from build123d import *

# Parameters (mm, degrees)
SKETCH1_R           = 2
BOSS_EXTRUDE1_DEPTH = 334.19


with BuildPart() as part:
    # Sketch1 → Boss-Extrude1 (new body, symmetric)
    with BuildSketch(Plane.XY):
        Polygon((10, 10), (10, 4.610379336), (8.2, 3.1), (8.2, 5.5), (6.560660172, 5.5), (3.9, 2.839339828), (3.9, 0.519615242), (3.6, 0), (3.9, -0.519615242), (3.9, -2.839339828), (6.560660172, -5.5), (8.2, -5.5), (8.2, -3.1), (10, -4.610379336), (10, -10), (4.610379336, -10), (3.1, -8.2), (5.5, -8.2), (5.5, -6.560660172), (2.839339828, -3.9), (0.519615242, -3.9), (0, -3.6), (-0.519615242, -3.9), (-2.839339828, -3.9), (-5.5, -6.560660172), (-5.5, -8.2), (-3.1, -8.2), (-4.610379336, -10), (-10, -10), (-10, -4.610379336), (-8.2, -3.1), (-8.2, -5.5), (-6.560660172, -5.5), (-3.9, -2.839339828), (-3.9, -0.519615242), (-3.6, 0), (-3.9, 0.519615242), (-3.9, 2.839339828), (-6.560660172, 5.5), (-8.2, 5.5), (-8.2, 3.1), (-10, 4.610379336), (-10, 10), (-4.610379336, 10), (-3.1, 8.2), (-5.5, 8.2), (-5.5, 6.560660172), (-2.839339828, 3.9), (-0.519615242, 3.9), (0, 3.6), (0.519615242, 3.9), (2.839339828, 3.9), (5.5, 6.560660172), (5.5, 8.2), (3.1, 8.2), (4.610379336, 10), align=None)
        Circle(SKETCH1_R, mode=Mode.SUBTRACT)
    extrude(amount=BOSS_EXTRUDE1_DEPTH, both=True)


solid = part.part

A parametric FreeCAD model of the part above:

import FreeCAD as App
import Part
import Sketcher

V = App.Vector
Q = App.Units.Quantity

doc = App.newDocument("Part")
body = doc.addObject("PartDesign::Body", "Body")

sketch1 = body.newObject("Sketcher::SketchObject", "Sketch")
sketch1.AttachmentSupport = (doc.getObject("XY_Plane"), [""])
sketch1.MapMode = "FlatFace"
sketch1.addGeometry([
    Part.LineSegment(V(10, 4.610379, 0), V(10, 10, 0)),
    Part.LineSegment(V(10, 10, 0), V(4.610379, 10, 0)),
    Part.LineSegment(V(4.610379, 10, 0), V(3.1, 8.2, 0)),
    Part.LineSegment(V(3.1, 8.2, 0), V(5.5, 8.2, 0)),
    Part.LineSegment(V(5.5, 8.2, 0), V(5.5, 6.56066, 0)),
    Part.LineSegment(V(5.5, 6.56066, 0), V(2.83934, 3.9, 0)),
    Part.LineSegment(V(2.83934, 3.9, 0), V(0.519615, 3.9, 0)),
    Part.LineSegment(V(0.519615, 3.9, 0), V(0, 3.6, 0)),
    Part.LineSegment(V(0, 3.6, 0), V(-0.519615, 3.9, 0)),
    Part.LineSegment(V(-0.519615, 3.9, 0), V(-2.83934, 3.9, 0)),
    Part.LineSegment(V(-2.83934, 3.9, 0), V(-5.5, 6.56066, 0)),
    Part.LineSegment(V(-5.5, 6.56066, 0), V(-5.5, 8.2, 0)),
    Part.LineSegment(V(-5.5, 8.2, 0), V(-3.1, 8.2, 0)),
    Part.LineSegment(V(-3.1, 8.2, 0), V(-4.610379, 10, 0)),
    Part.LineSegment(V(-4.610379, 10, 0), V(-10, 10, 0)),
    Part.LineSegment(V(-10, 10, 0), V(-10, 4.610379, 0)),
    Part.LineSegment(V(-10, 4.610379, 0), V(-8.2, 3.1, 0)),
    Part.LineSegment(V(-8.2, 3.1, 0), V(-8.2, 5.5, 0)),
    Part.LineSegment(V(-8.2, 5.5, 0), V(-6.56066, 5.5, 0)),
    Part.LineSegment(V(-6.56066, 5.5, 0), V(-3.9, 2.83934, 0)),
    Part.LineSegment(V(-3.9, 2.83934, 0), V(-3.9, 0.519615, 0)),
    Part.LineSegment(V(-3.9, 0.519615, 0), V(-3.6, 0, 0)),
    Part.LineSegment(V(-3.6, 0, 0), V(-3.9, -0.519615, 0)),
    Part.LineSegment(V(-3.9, -0.519615, 0), V(-3.9, -2.83934, 0)),
    Part.LineSegment(V(-3.9, -2.83934, 0), V(-6.56066, -5.5, 0)),
    Part.LineSegment(V(-6.56066, -5.5, 0), V(-8.2, -5.5, 0)),
    Part.LineSegment(V(-8.2, -5.5, 0), V(-8.2, -3.1, 0)),
    Part.LineSegment(V(-8.2, -3.1, 0), V(-10, -4.610379, 0)),
    Part.LineSegment(V(-10, -4.610379, 0), V(-10, -10, 0)),
    Part.LineSegment(V(-10, -10, 0), V(-4.610379, -10, 0)),
    Part.LineSegment(V(-4.610379, -10, 0), V(-3.1, -8.2, 0)),
    Part.LineSegment(V(-3.1, -8.2, 0), V(-5.5, -8.2, 0)),
    Part.LineSegment(V(-5.5, -8.2, 0), V(-5.5, -6.56066, 0)),
    Part.LineSegment(V(-5.5, -6.56066, 0), V(-2.83934, -3.9, 0)),
    Part.LineSegment(V(-2.83934, -3.9, 0), V(-0.519615, -3.9, 0)),
    Part.LineSegment(V(-0.519615, -3.9, 0), V(0, -3.6, 0)),
    Part.LineSegment(V(0, -3.6, 0), V(0.519615, -3.9, 0)),
    Part.LineSegment(V(0.519615, -3.9, 0), V(2.83934, -3.9, 0)),
    Part.LineSegment(V(2.83934, -3.9, 0), V(5.5, -6.56066, 0)),
    Part.LineSegment(V(5.5, -6.56066, 0), V(5.5, -8.2, 0)),
    Part.LineSegment(V(5.5, -8.2, 0), V(3.1, -8.2, 0)),
    Part.LineSegment(V(3.1, -8.2, 0), V(4.610379, -10, 0)),
    Part.LineSegment(V(4.610379, -10, 0), V(10, -10, 0)),
    Part.LineSegment(V(10, -10, 0), V(10, -4.610379, 0)),
    Part.LineSegment(V(10, -4.610379, 0), V(8.2, -3.1, 0)),
    Part.LineSegment(V(8.2, -3.1, 0), V(8.2, -5.5, 0)),
    Part.LineSegment(V(8.2, -5.5, 0), V(6.56066, -5.5, 0)),
    Part.LineSegment(V(6.56066, -5.5, 0), V(3.9, -2.83934, 0)),
    Part.LineSegment(V(3.9, -2.83934, 0), V(3.9, -0.519615, 0)),
    Part.LineSegment(V(3.9, -0.519615, 0), V(3.6, 0, 0)),
    Part.LineSegment(V(3.6, 0, 0), V(3.9, 0.519615, 0)),
    Part.LineSegment(V(3.9, 0.519615, 0), V(3.9, 2.83934, 0)),
    Part.LineSegment(V(3.9, 2.83934, 0), V(6.56066, 5.5, 0)),
    Part.LineSegment(V(6.56066, 5.5, 0), V(8.2, 5.5, 0)),
    Part.LineSegment(V(8.2, 5.5, 0), V(8.2, 3.1, 0)),
    Part.LineSegment(V(8.2, 3.1, 0), V(10, 4.610379, 0)),
    Part.Circle(V(0, 0, 0), V(0, 0, 1), 2),
], False)
sketch1.addConstraint([
    Sketcher.Constraint("Coincident", 0, 2, 1, 1),
    Sketcher.Constraint("Coincident", 1, 2, 2, 1),
    Sketcher.Constraint("Coincident", 2, 2, 3, 1),
    Sketcher.Constraint("Coincident", 3, 2, 4, 1),
    Sketcher.Constraint("Coincident", 4, 2, 5, 1),
    Sketcher.Constraint("Coincident", 5, 2, 6, 1),
    Sketcher.Constraint("Coincident", 6, 2, 7, 1),
    Sketcher.Constraint("Coincident", 7, 2, 8, 1),
    Sketcher.Constraint("Coincident", 8, 2, 9, 1),
    Sketcher.Constraint("Coincident", 9, 2, 10, 1),
    Sketcher.Constraint("Coincident", 10, 2, 11, 1),
    Sketcher.Constraint("Coincident", 11, 2, 12, 1),
    Sketcher.Constraint("Coincident", 12, 2, 13, 1),
    Sketcher.Constraint("Coincident", 13, 2, 14, 1),
    Sketcher.Constraint("Coincident", 14, 2, 15, 1),
    Sketcher.Constraint("Coincident", 15, 2, 16, 1),
    Sketcher.Constraint("Coincident", 16, 2, 17, 1),
    Sketcher.Constraint("Coincident", 17, 2, 18, 1),
    Sketcher.Constraint("Coincident", 18, 2, 19, 1),
    Sketcher.Constraint("Coincident", 19, 2, 20, 1),
    Sketcher.Constraint("Coincident", 20, 2, 21, 1),
    Sketcher.Constraint("Coincident", 21, 2, 22, 1),
    Sketcher.Constraint("Coincident", 22, 2, 23, 1),
    Sketcher.Constraint("Coincident", 23, 2, 24, 1),
    Sketcher.Constraint("Coincident", 24, 2, 25, 1),
    Sketcher.Constraint("Coincident", 25, 2, 26, 1),
    Sketcher.Constraint("Coincident", 26, 2, 27, 1),
    Sketcher.Constraint("Coincident", 27, 2, 28, 1),
    Sketcher.Constraint("Coincident", 28, 2, 29, 1),
    Sketcher.Constraint("Coincident", 29, 2, 30, 1),
    Sketcher.Constraint("Coincident", 30, 2, 31, 1),
    Sketcher.Constraint("Coincident", 31, 2, 32, 1),
    Sketcher.Constraint("Coincident", 32, 2, 33, 1),
    Sketcher.Constraint("Coincident", 33, 2, 34, 1),
    Sketcher.Constraint("Coincident", 34, 2, 35, 1),
    Sketcher.Constraint("Coincident", 35, 2, 36, 1),
    Sketcher.Constraint("Coincident", 36, 2, 37, 1),
    Sketcher.Constraint("Coincident", 37, 2, 38, 1),
    Sketcher.Constraint("Coincident", 38, 2, 39, 1),
    Sketcher.Constraint("Coincident", 39, 2, 40, 1),
    Sketcher.Constraint("Coincident", 40, 2, 41, 1),
    Sketcher.Constraint("Coincident", 41, 2, 42, 1),
    Sketcher.Constraint("Coincident", 42, 2, 43, 1),
    Sketcher.Constraint("Coincident", 43, 2, 44, 1),
    Sketcher.Constraint("Coincident", 44, 2, 45, 1),
    Sketcher.Constraint("Coincident", 45, 2, 46, 1),
    Sketcher.Constraint("Coincident", 46, 2, 47, 1),
    Sketcher.Constraint("Coincident", 47, 2, 48, 1),
    Sketcher.Constraint("Coincident", 48, 2, 49, 1),
    Sketcher.Constraint("Coincident", 49, 2, 50, 1),
    Sketcher.Constraint("Coincident", 50, 2, 51, 1),
    Sketcher.Constraint("Coincident", 51, 2, 52, 1),
    Sketcher.Constraint("Coincident", 52, 2, 53, 1),
    Sketcher.Constraint("Coincident", 53, 2, 54, 1),
    Sketcher.Constraint("Coincident", 54, 2, 55, 1),
    Sketcher.Constraint("Coincident", 55, 2, 0, 1),
    Sketcher.Constraint("Vertical", 0),
    Sketcher.Constraint("Horizontal", 1),
    Sketcher.Constraint("Horizontal", 3),
    Sketcher.Constraint("Vertical", 4),
    Sketcher.Constraint("Horizontal", 6),
    Sketcher.Constraint("Horizontal", 9),
    Sketcher.Constraint("Vertical", 11),
    Sketcher.Constraint("Horizontal", 12),
    Sketcher.Constraint("Horizontal", 14),
    Sketcher.Constraint("Vertical", 15),
    Sketcher.Constraint("Vertical", 17),
    Sketcher.Constraint("Horizontal", 18),
    Sketcher.Constraint("Vertical", 20),
    Sketcher.Constraint("Vertical", 23),
    Sketcher.Constraint("Horizontal", 25),
    Sketcher.Constraint("Vertical", 26),
    Sketcher.Constraint("Vertical", 28),
    Sketcher.Constraint("Horizontal", 29),
    Sketcher.Constraint("Horizontal", 31),
    Sketcher.Constraint("Vertical", 32),
    Sketcher.Constraint("Horizontal", 34),
    Sketcher.Constraint("Horizontal", 37),
    Sketcher.Constraint("Vertical", 39),
    Sketcher.Constraint("Horizontal", 40),
    Sketcher.Constraint("Horizontal", 42),
    Sketcher.Constraint("Vertical", 43),
    Sketcher.Constraint("Vertical", 45),
    Sketcher.Constraint("Horizontal", 46),
    Sketcher.Constraint("Vertical", 48),
    Sketcher.Constraint("Vertical", 51),
    Sketcher.Constraint("Horizontal", 53),
    Sketcher.Constraint("Vertical", 54),
    Sketcher.Constraint("Coincident", 56, 3, -1, 1),
    Sketcher.Constraint("Symmetric", 0, 2, 28, 2, -1, 1),
    Sketcher.Constraint("Symmetric", 2, 2, 30, 2, -1, 1),
    Sketcher.Constraint("Symmetric", 4, 2, 32, 2, -1, 1),
    Sketcher.Constraint("Symmetric", 5, 2, 33, 2, -1, 1),
    Sketcher.Constraint("Symmetric", 7, 2, 35, 2, -1, 1),
    Sketcher.Constraint("Symmetric", 8, 2, 36, 2, -1, 1),
    Sketcher.Constraint("Symmetric", 10, 2, 38, 2, -1, 1),
    Sketcher.Constraint("Symmetric", 12, 2, 40, 2, -1, 1),
    Sketcher.Constraint("Symmetric", 13, 2, 41, 2, -1, 1),
    Sketcher.Constraint("Symmetric", 15, 2, 43, 2, -1, 1),
    Sketcher.Constraint("Symmetric", 16, 2, 44, 2, -1, 1),
    Sketcher.Constraint("Symmetric", 18, 2, 46, 2, -1, 1),
    Sketcher.Constraint("Symmetric", 19, 2, 47, 2, -1, 1),
    Sketcher.Constraint("Symmetric", 21, 2, 49, 2, -1, 1),
    Sketcher.Constraint("Symmetric", 22, 2, 50, 2, -1, 1),
    Sketcher.Constraint("Symmetric", 24, 2, 52, 2, -1, 1),
    Sketcher.Constraint("Symmetric", 26, 2, 54, 2, -1, 1),
    Sketcher.Constraint("Symmetric", 6, 2, 8, 2, -2),
    Sketcher.Constraint("Symmetric", 4, 2, 10, 2, -2),
    Sketcher.Constraint("Symmetric", 2, 2, 12, 2, -2),
    Sketcher.Constraint("Symmetric", 1, 2, 13, 2, -2),
    Sketcher.Constraint("Symmetric", 27, 2, 43, 2, -2),
    Sketcher.Constraint("Symmetric", 26, 2, 44, 2, -2),
    Sketcher.Constraint("Symmetric", 24, 2, 46, 2, -2),
    Sketcher.Constraint("Symmetric", 23, 2, 47, 2, -2),
    Sketcher.Constraint("PointOnObject", 7, 2, -2),
    Sketcher.Constraint("PointOnObject", 21, 2, -1),
    Sketcher.Constraint("Perpendicular", 5, 10),
    Sketcher.Constraint("Perpendicular", 2, 16),
    Sketcher.Constraint("Parallel", 10, 19),
    Sketcher.Constraint("Perpendicular", 7, 21),
    Sketcher.Constraint("Perpendicular", 8, 22),
    Sketcher.Constraint("Perpendicular", 19, 24),
    Sketcher.Constraint("Perpendicular", 16, 30),
    Sketcher.Constraint("Perpendicular", 21, 35),
    Sketcher.Constraint("Perpendicular", 33, 38),
    Sketcher.Constraint("Perpendicular", 35, 49),
    Sketcher.Constraint("Perpendicular", 47, 52),
    Sketcher.Constraint("Perpendicular", 41, 55),
    Sketcher.Constraint("Equal", 42, 0),
    Sketcher.Constraint("Equal", 53, 4),
    Sketcher.Constraint("Equal", 40, 17),
    Sketcher.Constraint("Equal", 37, 20),
    Sketcher.Constraint("Equal", 13, 16),
    Sketcher.Constraint("Equal", 10, 19),
    Sketcher.Constraint("Equal", 8, 21),
    Sketcher.Constraint("Diameter", 56, Q("4 mm")),
    Sketcher.Constraint("Angle", 2, Q("-130 deg")),
    Sketcher.Constraint("Angle", 7, Q("-150 deg")),
    Sketcher.Constraint("DistanceX", 3, 1, 3, 2, Q("2.4 mm")),
    Sketcher.Constraint("DistanceX", -1, 1, 0, 2, Q("10 mm")),
    Sketcher.Constraint("Distance", 7, Q("0.6 mm")),
    Sketcher.Constraint("DistanceX", -1, 1, 2, 2, Q("3.1 mm")),
    Sketcher.Constraint("DistanceY", -1, 1, 2, 2, Q("8.2 mm")),
    Sketcher.Constraint("DistanceY", -1, 1, 5, 2, Q("3.9 mm")),
    Sketcher.Constraint("DistanceX", 18, 1, 18, 2, Q("1.63934 mm")),
])
pad1 = body.newObject("PartDesign::Pad", "Pad")
pad1.Profile = sketch1
pad1.Length = 668.38
pad1.Midplane = True

doc.recompute()
